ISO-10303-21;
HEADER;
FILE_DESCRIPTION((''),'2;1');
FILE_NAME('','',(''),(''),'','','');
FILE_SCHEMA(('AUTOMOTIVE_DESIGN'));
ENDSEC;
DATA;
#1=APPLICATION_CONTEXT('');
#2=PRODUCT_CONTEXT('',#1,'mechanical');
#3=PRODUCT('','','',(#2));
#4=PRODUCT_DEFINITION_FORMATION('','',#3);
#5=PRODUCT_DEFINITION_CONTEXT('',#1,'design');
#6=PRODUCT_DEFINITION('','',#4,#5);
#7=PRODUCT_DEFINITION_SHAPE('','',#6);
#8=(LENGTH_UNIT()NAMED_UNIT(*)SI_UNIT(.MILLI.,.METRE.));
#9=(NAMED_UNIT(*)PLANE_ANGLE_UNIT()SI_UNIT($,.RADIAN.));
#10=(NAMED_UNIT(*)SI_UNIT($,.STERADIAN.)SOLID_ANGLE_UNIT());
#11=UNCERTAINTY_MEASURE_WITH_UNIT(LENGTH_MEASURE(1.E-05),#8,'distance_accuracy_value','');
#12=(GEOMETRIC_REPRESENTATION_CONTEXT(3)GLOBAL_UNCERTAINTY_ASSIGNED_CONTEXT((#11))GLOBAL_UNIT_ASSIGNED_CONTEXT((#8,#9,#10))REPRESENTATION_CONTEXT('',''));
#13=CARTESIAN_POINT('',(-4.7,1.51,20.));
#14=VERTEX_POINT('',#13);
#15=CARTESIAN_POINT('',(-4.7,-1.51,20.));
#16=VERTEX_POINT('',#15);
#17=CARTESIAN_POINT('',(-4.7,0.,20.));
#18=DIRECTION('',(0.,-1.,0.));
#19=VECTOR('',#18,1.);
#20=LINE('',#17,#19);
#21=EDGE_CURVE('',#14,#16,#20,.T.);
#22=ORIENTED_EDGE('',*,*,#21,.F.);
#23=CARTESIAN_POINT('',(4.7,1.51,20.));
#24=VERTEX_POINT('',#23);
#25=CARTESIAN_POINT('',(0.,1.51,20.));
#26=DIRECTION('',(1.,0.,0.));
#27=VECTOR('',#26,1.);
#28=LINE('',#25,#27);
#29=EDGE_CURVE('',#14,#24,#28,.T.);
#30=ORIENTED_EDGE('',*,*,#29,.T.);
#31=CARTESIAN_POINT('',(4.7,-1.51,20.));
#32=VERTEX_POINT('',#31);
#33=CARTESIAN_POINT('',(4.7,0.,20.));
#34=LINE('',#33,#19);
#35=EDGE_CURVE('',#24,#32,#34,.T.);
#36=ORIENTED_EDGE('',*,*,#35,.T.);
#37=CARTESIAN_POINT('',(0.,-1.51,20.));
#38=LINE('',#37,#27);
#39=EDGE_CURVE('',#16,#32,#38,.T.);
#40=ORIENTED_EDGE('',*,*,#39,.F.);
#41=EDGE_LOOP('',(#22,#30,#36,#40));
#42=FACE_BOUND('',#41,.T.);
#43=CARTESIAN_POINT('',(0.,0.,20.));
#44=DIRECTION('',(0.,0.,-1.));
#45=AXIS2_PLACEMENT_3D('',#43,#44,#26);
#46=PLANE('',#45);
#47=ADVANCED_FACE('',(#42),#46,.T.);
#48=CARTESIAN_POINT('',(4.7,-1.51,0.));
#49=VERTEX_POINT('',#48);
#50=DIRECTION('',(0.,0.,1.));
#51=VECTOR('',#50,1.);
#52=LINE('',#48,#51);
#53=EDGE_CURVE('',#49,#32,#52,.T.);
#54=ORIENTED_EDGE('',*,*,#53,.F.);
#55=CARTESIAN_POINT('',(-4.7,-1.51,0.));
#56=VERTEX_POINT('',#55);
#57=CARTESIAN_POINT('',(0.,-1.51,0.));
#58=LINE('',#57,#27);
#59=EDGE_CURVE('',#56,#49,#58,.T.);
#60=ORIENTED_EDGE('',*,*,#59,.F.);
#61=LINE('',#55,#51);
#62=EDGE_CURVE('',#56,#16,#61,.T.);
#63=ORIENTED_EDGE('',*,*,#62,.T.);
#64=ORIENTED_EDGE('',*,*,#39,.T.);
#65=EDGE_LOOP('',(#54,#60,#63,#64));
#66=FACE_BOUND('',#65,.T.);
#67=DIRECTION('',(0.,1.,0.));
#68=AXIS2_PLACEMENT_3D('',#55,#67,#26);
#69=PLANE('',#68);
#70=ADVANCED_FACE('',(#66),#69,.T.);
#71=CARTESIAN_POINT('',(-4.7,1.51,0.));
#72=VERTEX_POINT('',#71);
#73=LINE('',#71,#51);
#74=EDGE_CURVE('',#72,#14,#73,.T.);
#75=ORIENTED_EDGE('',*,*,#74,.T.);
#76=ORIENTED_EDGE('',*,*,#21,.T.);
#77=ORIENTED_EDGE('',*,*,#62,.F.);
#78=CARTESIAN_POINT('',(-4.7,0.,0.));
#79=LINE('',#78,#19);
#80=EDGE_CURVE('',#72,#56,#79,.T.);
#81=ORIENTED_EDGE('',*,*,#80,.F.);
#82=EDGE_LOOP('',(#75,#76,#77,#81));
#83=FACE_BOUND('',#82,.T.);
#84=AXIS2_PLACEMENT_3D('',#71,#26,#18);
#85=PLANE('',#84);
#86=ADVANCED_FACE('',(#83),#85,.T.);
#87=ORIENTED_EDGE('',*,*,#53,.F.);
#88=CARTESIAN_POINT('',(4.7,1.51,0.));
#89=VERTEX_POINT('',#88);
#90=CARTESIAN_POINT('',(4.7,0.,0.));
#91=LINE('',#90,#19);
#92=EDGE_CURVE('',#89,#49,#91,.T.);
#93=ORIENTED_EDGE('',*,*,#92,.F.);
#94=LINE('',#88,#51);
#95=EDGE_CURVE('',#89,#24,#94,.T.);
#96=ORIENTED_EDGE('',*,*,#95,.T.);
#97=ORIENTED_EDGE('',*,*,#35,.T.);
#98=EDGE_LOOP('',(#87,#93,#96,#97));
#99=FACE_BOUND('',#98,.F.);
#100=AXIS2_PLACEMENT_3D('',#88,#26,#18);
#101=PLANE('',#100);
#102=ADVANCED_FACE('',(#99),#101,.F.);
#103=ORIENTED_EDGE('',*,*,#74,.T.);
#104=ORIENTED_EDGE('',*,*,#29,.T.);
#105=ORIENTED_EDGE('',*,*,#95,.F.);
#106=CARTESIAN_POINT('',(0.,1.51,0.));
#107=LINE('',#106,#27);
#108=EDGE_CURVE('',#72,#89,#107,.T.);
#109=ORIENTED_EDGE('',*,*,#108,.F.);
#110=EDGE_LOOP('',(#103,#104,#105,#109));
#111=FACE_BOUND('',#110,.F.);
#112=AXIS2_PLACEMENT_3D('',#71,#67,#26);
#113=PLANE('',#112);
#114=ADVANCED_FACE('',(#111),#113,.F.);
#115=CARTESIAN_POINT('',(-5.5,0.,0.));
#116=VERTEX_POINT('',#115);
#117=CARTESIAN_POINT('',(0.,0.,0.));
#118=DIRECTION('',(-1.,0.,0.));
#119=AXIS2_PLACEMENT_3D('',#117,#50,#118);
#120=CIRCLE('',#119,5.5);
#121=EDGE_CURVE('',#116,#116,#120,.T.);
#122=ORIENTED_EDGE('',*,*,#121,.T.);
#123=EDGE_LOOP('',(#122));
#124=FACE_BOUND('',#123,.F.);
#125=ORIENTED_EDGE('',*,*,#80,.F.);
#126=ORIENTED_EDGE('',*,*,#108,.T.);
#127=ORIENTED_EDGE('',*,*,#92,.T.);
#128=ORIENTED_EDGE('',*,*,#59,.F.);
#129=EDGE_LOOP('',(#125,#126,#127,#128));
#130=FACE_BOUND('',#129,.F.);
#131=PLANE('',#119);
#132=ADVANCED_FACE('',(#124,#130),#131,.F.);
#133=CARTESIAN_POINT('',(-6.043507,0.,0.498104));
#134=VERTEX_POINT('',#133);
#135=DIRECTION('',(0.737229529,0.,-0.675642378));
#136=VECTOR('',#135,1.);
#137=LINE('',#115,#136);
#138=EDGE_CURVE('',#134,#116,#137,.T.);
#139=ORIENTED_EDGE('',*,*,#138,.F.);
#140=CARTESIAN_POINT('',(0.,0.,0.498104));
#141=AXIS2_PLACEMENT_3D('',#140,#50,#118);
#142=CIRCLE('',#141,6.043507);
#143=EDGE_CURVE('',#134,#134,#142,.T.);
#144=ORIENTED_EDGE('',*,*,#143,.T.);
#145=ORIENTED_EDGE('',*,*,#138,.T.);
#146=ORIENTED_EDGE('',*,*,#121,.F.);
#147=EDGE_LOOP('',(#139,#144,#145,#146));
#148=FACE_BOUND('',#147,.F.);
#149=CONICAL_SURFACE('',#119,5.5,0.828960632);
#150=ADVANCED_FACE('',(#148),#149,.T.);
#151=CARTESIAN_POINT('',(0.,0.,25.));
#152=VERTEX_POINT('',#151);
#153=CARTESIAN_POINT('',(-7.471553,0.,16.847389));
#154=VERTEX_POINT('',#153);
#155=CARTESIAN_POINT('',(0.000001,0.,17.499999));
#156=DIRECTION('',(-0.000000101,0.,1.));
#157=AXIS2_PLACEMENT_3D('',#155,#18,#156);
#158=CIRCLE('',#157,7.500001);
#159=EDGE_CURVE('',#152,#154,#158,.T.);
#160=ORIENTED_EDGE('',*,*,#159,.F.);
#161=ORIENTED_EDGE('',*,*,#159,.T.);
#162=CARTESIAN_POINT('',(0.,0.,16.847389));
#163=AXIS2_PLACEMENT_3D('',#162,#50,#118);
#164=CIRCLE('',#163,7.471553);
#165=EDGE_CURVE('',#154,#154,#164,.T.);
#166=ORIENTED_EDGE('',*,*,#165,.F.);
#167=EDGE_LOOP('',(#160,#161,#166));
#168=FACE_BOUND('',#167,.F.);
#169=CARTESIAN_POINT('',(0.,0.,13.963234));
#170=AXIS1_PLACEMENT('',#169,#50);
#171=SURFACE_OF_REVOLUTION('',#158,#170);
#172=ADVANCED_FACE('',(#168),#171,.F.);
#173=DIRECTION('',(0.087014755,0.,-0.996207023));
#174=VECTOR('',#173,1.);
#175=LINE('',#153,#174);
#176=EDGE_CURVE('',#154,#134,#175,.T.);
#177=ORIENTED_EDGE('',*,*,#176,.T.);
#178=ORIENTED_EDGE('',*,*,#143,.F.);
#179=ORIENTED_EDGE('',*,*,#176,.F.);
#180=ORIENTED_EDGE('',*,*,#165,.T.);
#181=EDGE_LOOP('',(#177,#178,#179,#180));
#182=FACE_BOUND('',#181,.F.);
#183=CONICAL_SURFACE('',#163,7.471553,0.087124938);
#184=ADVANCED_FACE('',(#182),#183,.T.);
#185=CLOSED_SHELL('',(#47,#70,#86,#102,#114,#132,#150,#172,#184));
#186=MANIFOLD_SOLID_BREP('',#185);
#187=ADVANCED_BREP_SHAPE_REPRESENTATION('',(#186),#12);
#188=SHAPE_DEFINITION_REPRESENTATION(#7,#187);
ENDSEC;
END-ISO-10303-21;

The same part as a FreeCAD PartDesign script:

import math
import FreeCAD as App
import Part
import Sketcher
from FreeCAD import Vector


def edges_at(feature, points):
    """Names of the edges that pass closest to the given points."""
    edges = feature.Shape.Edges
    near = lambda p: min(range(len(edges)), key=lambda i: edges[i].distToShape(Part.Vertex(*p))[0])
    return sorted({f"Edge{near(p) + 1}" for p in points})

doc = App.newDocument("Part")
params = doc.addObject("Spreadsheet::Sheet", "Params")
for row, (alias, value) in enumerate([
    ("sketch1_radius", "7.500001 mm"),
    ("sketch1_width", "6 mm"),
    ("sketch1_height", "25 mm"),
    ("revolution_angle", "360 deg"),
    ("sketch2_width", "9.4 mm"),
    ("sketch2_height", "3.02 mm"),
    ("pocket1_length", "20 mm"),
    ("chamfer_size", "0.5 mm"),
], start=1):
    params.set(f"A{row}", alias)
    params.set(f"B{row}", "=" + value)
    params.setAlias(f"B{row}", alias)

body = doc.addObject("PartDesign::Body", "Body")

# Sketch on XZ plane
sketch1 = body.newObject("Sketcher::SketchObject", "Sketch")
sketch1.AttachmentSupport = (doc.getObject("XZ_Plane"), [""])
sketch1.MapMode = "FlatFace"
sketch1.addGeometry([
    Part.LineSegment(Vector(0, 0, 0), Vector(0, 25, 0)),
    Part.ArcOfCircle(Part.Circle(Vector(0, 17, 0), Vector(0, 0, 1), 8), math.radians(90), math.radians(185)),
    Part.LineSegment(Vector(-7, 17, 0), Vector(-6, 0, 0)),
    Part.LineSegment(Vector(-6, 0, 0), Vector(0, 0, 0)),
], False)
sketch1.addConstraint([
    Sketcher.Constraint("Coincident", 0, 2, 1, 1),
    Sketcher.Constraint("Tangent", 1, 2, 2, 1),
    Sketcher.Constraint("Coincident", 2, 2, 3, 1),
    Sketcher.Constraint("Coincident", 3, 2, 0, 1),
    Sketcher.Constraint("Vertical", 0),
    Sketcher.Constraint("Horizontal", 3),
    Sketcher.Constraint("Coincident", 3, 2, -1, 1),
    Sketcher.Constraint("PointOnObject", 1, 3, -2),
    Sketcher.Constraint("Radius", 1, 7.500001),
    Sketcher.Constraint("DistanceX", 3, 1, 3, 2, 6.0),
    Sketcher.Constraint("DistanceY", 0, 1, 0, 2, 25.0),
])
sketch1.setExpression("Constraints[8]", "Params.sketch1_radius")
sketch1.setExpression("Constraints[9]", "Params.sketch1_width")
sketch1.setExpression("Constraints[10]", "Params.sketch1_height")
revolution = body.newObject("PartDesign::Revolution", "Revolution")
revolution.Profile = sketch1
revolution.ReferenceAxis = (sketch1, ["V_Axis"])
revolution.setExpression("Angle", "Params.revolution_angle")

# Sketch on XY plane
sketch2 = body.newObject("Sketcher::SketchObject", "Sketch001")
sketch2.AttachmentSupport = (doc.getObject("XY_Plane"), [""])
sketch2.MapMode = "FlatFace"
sketch2.addGeometry([
    Part.LineSegment(Vector(-4.7, -1.5, 0), Vector(-4.7, 1.5, 0)),
    Part.LineSegment(Vector(-4.7, 1.5, 0), Vector(4.7, 1.5, 0)),
    Part.LineSegment(Vector(4.7, 1.5, 0), Vector(4.7, -1.5, 0)),
    Part.LineSegment(Vector(4.7, -1.5, 0), Vector(-4.7, -1.5, 0)),
], False)
sketch2.addConstraint([
    Sketcher.Constraint("Coincident", 0, 2, 1, 1),
    Sketcher.Constraint("Coincident", 1, 2, 2, 1),
    Sketcher.Constraint("Coincident", 2, 2, 3, 1),
    Sketcher.Constraint("Coincident", 3, 2, 0, 1),
    Sketcher.Constraint("Vertical", 0),
    Sketcher.Constraint("Horizontal", 1),
    Sketcher.Constraint("Vertical", 2),
    Sketcher.Constraint("Horizontal", 3),
    Sketcher.Constraint("Symmetric", 0, 2, 2, 2, -1, 1),
    Sketcher.Constraint("DistanceX", 1, 1, 1, 2, 9.4),
    Sketcher.Constraint("DistanceY", 0, 1, 0, 2, 3.02),
])
sketch2.setExpression("Constraints[9]", "Params.sketch2_width")
sketch2.setExpression("Constraints[10]", "Params.sketch2_height")
pocket1 = body.newObject("PartDesign::Pocket", "Pocket")
pocket1.Profile = sketch2
pocket1.setExpression("Length", "Params.pocket1_length")
pocket1.Reversed = True
doc.recompute()

chamfer = body.newObject("PartDesign::Chamfer", "Chamfer")
chamfer.Base = (pocket1, edges_at(pocket1, [(6, 0, 0)]))
chamfer.setExpression("Size", "Params.chamfer_size")

doc.recompute()
